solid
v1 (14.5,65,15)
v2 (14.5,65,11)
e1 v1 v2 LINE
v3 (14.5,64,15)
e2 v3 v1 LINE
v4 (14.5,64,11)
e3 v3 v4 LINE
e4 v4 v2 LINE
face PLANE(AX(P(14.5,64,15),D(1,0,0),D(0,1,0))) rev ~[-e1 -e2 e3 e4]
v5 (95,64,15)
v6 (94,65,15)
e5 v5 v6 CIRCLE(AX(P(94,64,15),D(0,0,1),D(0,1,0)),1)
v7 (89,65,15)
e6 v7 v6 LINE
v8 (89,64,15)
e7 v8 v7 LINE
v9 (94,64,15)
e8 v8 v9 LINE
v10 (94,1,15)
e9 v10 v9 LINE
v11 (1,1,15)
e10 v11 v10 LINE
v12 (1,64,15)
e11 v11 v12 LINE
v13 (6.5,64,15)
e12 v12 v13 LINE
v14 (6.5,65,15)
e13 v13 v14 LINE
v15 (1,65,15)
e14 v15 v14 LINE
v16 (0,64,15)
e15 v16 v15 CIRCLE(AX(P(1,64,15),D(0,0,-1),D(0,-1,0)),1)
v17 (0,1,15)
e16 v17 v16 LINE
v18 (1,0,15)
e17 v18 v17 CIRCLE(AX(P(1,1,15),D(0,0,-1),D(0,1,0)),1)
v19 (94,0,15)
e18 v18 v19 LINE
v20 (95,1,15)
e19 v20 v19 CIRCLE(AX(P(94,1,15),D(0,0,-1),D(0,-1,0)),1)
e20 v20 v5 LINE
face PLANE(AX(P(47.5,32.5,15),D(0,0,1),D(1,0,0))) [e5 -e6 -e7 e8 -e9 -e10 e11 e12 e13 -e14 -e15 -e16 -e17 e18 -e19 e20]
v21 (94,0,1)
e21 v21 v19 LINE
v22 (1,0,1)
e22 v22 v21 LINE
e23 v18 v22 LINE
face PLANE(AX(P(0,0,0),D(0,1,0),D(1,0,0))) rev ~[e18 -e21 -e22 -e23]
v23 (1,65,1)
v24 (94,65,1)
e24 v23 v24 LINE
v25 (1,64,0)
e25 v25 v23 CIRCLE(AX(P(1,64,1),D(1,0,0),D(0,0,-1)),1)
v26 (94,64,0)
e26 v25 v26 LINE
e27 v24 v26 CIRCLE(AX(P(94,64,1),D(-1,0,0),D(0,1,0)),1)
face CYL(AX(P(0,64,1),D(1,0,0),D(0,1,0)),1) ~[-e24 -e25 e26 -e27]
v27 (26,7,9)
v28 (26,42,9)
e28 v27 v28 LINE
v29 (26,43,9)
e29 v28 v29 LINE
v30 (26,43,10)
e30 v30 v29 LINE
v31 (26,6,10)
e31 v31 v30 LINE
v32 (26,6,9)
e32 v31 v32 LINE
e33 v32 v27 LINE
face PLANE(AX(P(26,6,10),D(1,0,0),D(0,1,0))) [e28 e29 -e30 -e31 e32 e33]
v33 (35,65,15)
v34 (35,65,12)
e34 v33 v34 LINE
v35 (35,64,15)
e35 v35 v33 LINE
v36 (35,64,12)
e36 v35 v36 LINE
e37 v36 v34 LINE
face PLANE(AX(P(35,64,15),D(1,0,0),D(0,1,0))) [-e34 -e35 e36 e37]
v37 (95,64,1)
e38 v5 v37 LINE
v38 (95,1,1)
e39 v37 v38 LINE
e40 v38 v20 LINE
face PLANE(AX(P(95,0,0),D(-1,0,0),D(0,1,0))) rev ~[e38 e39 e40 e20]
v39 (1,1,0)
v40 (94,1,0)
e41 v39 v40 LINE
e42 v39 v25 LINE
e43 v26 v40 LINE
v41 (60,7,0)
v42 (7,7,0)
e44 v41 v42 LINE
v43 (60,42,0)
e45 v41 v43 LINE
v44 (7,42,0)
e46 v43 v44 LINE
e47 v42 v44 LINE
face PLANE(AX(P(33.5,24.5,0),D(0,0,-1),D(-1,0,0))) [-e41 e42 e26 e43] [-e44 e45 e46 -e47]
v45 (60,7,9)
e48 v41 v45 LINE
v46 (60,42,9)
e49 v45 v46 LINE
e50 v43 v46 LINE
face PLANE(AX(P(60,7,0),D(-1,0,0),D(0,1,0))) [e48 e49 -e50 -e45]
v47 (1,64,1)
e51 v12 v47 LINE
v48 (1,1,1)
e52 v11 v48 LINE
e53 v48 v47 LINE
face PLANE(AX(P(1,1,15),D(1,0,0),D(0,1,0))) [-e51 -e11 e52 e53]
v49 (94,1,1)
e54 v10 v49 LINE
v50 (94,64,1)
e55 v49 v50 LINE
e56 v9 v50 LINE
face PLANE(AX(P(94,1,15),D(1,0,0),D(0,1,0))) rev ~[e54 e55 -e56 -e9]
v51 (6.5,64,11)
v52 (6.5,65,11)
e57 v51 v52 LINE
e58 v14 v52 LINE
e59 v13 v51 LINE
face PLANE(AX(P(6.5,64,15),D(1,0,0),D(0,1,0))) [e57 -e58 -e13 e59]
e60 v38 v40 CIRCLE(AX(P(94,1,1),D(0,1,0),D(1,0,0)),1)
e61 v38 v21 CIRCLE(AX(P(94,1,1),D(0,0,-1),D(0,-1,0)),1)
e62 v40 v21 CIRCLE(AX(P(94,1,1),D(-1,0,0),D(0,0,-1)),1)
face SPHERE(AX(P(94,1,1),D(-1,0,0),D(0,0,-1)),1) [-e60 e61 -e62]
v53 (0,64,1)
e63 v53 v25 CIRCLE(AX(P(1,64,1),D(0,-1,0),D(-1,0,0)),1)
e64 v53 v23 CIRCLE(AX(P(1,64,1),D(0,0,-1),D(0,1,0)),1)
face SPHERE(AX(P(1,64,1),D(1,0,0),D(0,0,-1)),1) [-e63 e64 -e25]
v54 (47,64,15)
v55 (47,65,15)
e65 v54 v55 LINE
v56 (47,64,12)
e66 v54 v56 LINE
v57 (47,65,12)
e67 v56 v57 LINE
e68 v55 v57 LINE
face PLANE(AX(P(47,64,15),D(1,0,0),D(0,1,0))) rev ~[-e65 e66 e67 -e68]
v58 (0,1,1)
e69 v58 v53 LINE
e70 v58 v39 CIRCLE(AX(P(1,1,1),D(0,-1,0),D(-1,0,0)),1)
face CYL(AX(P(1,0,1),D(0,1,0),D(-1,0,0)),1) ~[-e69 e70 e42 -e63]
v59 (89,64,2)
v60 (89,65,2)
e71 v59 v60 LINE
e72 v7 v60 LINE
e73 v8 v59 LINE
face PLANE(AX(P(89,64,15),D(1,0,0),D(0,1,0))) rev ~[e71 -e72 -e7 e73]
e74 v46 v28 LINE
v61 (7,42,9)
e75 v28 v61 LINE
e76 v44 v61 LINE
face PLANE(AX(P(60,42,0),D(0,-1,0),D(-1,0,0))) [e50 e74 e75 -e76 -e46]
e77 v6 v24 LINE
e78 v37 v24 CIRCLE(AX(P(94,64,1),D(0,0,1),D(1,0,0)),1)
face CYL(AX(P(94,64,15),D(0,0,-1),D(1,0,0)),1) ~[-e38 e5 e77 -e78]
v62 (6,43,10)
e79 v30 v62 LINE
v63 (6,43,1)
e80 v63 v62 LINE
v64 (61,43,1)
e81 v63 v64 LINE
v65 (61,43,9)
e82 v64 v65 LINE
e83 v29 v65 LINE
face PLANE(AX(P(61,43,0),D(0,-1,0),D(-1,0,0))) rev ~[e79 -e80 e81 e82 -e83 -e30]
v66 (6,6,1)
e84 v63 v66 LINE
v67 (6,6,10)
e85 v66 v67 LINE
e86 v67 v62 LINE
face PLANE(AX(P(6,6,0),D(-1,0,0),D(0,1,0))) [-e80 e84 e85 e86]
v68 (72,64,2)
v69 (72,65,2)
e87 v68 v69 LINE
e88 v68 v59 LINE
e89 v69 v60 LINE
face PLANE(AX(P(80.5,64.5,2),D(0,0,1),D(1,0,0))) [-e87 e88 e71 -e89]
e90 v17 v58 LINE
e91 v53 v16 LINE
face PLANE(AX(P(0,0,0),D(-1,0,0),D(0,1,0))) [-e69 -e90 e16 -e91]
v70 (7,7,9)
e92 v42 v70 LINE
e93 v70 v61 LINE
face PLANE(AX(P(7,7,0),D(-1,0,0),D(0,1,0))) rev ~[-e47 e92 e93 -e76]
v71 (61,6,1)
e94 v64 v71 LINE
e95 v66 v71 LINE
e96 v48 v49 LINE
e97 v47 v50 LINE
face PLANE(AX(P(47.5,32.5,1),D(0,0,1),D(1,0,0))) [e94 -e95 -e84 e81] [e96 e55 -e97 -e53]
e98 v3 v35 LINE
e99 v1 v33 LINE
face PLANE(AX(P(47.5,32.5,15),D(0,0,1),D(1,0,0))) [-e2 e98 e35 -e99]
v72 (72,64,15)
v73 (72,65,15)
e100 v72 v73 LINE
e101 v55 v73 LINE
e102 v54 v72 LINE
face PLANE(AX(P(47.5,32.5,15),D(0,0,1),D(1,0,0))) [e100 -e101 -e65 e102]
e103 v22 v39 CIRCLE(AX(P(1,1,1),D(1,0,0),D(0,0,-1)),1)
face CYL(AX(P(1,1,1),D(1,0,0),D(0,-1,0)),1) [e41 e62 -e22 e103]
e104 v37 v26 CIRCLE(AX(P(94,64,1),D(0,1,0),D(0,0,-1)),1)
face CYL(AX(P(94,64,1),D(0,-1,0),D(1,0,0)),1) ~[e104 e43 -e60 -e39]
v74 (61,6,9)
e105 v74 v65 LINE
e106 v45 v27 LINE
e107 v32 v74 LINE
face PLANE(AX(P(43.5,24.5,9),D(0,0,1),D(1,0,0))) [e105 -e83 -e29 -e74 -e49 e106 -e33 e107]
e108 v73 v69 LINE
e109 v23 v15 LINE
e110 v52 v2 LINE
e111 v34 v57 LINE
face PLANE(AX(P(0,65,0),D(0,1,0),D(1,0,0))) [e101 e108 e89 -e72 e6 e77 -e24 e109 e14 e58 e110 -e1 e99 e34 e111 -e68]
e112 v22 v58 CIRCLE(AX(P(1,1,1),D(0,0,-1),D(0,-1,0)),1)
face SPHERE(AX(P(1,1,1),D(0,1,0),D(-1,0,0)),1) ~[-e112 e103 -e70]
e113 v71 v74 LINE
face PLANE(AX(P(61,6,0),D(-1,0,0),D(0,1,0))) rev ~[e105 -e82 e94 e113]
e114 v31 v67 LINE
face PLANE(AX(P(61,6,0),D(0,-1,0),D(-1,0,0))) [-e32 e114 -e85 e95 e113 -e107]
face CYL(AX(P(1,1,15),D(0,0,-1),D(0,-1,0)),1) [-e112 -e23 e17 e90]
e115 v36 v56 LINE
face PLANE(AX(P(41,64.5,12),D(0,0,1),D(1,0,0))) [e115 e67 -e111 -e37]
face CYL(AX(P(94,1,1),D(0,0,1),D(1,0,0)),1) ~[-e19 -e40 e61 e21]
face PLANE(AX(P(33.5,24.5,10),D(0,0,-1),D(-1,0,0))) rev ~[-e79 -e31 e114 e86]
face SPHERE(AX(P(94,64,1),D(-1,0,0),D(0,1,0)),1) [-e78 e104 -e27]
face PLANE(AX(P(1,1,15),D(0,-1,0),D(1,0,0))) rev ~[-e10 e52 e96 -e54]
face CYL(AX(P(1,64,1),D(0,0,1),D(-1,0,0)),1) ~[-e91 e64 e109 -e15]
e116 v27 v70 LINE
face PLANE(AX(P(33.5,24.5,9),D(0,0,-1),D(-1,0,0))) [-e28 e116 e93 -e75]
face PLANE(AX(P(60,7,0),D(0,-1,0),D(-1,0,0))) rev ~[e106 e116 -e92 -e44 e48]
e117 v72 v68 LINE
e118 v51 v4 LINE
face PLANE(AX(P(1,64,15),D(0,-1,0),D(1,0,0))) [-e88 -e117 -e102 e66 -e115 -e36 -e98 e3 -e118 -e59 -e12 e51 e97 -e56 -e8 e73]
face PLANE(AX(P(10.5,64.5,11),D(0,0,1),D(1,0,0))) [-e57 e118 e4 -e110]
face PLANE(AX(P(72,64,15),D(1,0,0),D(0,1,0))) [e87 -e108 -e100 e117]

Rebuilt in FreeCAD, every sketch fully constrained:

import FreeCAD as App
import Part
import Sketcher


def edges_at(feature, points):
    """Names of the edges that pass closest to the given points."""
    edges = feature.Shape.Edges
    near = lambda p: min(range(len(edges)), key=lambda i: edges[i].distToShape(Part.Vertex(*p))[0])
    return sorted({f"Edge{near(p) + 1}" for p in points})


def add_polygon(sketch, points):
    """Adds a closed chain of lines whose ends are joined by coincident constraints."""
    first, n = sketch.GeometryCount, len(points)
    for a, b in zip(points, points[1:] + points[:1]):
        sketch.addGeometry(Part.LineSegment(App.Vector(*a, 0), App.Vector(*b, 0)), False)
    for i in range(n):
        sketch.addConstraint(Sketcher.Constraint("Coincident", first + i, 2, first + (i + 1) % n, 1))

doc = App.newDocument("Part")
body = doc.addObject("PartDesign::Body", "Body")

sketch1 = body.newObject("Sketcher::SketchObject", "Sketch")
sketch1.AttachmentSupport = (doc.getObject("XY_Plane"), [""])
sketch1.MapMode = "FlatFace"
add_polygon(sketch1, [(0, 65), (0, 0), (95, 0), (95, 65)])
sketch1.addConstraint(Sketcher.Constraint("Vertical", 0))
sketch1.addConstraint(Sketcher.Constraint("Horizontal", 1))
sketch1.addConstraint(Sketcher.Constraint("Vertical", 2))
sketch1.addConstraint(Sketcher.Constraint("Horizontal", 3))
sketch1.addConstraint(Sketcher.Constraint("Coincident", 0, 2, -1, 1))
sketch1.addConstraint(Sketcher.Constraint("DistanceX", 1, 1, 1, 2, 95.0))
sketch1.addConstraint(Sketcher.Constraint("DistanceY", 0, 2, 0, 1, 65.0))
pad1 = body.newObject("PartDesign::Pad", "Pad")
pad1.Profile = sketch1
pad1.Length = 15

sketch2 = body.newObject("Sketcher::SketchObject", "Sketch001")
sketch2.AttachmentSupport = (doc.getObject("XY_Plane"), [""])
sketch2.MapMode = "FlatFace"
sketch2.AttachmentOffset = App.Placement(App.Vector(0, 0, 15), App.Rotation())
add_polygon(sketch2, [(1, 64), (1, 1), (94, 1), (94, 64)])
sketch2.addConstraint(Sketcher.Constraint("Vertical", 0))
sketch2.addConstraint(Sketcher.Constraint("Horizontal", 1))
sketch2.addConstraint(Sketcher.Constraint("Vertical", 2))
sketch2.addConstraint(Sketcher.Constraint("Horizontal", 3))
sketch2.addConstraint(Sketcher.Constraint("DistanceX", 1, 1, 1, 2, 93.0))
sketch2.addConstraint(Sketcher.Constraint("DistanceY", 0, 2, 0, 1, 63.0))
sketch2.addConstraint(Sketcher.Constraint("DistanceX", -1, 1, 0, 2, 1.0))
sketch2.addConstraint(Sketcher.Constraint("DistanceY", -1, 1, 0, 2, 1.0))
pocket1 = body.newObject("PartDesign::Pocket", "Pocket")
pocket1.Profile = sketch2
pocket1.Length = 14

sketch3 = body.newObject("Sketcher::SketchObject", "Sketch002")
sketch3.AttachmentSupport = (doc.getObject("XY_Plane"), [""])
sketch3.MapMode = "FlatFace"
sketch3.AttachmentOffset = App.Placement(App.Vector(0, 0, 15), App.Rotation())
add_polygon(sketch3, [(72, 65), (72, 64), (89, 64), (89, 65)])
sketch3.addConstraint(Sketcher.Constraint("Vertical", 0))
sketch3.addConstraint(Sketcher.Constraint("Horizontal", 1))
sketch3.addConstraint(Sketcher.Constraint("Vertical", 2))
sketch3.addConstraint(Sketcher.Constraint("Horizontal", 3))
sketch3.addConstraint(Sketcher.Constraint("DistanceX", 1, 1, 1, 2, 17.0))
sketch3.addConstraint(Sketcher.Constraint("DistanceY", 0, 2, 0, 1, 1.0))
sketch3.addConstraint(Sketcher.Constraint("DistanceX", -1, 1, 0, 2, 72.0))
sketch3.addConstraint(Sketcher.Constraint("DistanceY", -1, 1, 0, 2, 64.0))
pocket2 = body.newObject("PartDesign::Pocket", "Pocket001")
pocket2.Profile = sketch3
pocket2.Length = 13
doc.recompute()

fillet = body.newObject("PartDesign::Fillet", "Fillet")
fillet.Base = (pocket2, edges_at(pocket2, [(47.5, 65, 0)]))
fillet.Radius = 1
doc.recompute()

fillet2 = body.newObject("PartDesign::Fillet", "Fillet001")
fillet2.Base = (fillet, edges_at(fillet, [(0, 32, 0), (0, 64.707, 0.293), (0, 65, 8)]))
fillet2.Radius = 1
doc.recompute()

fillet3 = body.newObject("PartDesign::Fillet", "Fillet002")
fillet3.Base = (fillet2, edges_at(fillet2, [(48, 0, 0), (0.293, 0, 0.293), (0, 0, 8)]))
fillet3.Radius = 1
doc.recompute()

fillet4 = body.newObject("PartDesign::Fillet", "Fillet003")
fillet4.Base = (fillet3, edges_at(fillet3, [
    (95, 64.707, 0.293),
    (95, 32.5, 0),
    (95, 0.293, 0.293),
    (95, 65, 8),
    (95, 0, 8),
]))
fillet4.Radius = 1

sketch4 = body.newObject("Sketcher::SketchObject", "Sketch003")
sketch4.AttachmentSupport = (doc.getObject("XY_Plane"), [""])
sketch4.MapMode = "FlatFace"
sketch4.AttachmentOffset = App.Placement(App.Vector(0, 0, 15), App.Rotation())
add_polygon(sketch4, [(6.5, 65), (6.5, 64), (14.5, 64), (14.5, 65)])
sketch4.addConstraint(Sketcher.Constraint("Vertical", 0))
sketch4.addConstraint(Sketcher.Constraint("Horizontal", 1))
sketch4.addConstraint(Sketcher.Constraint("Vertical", 2))
sketch4.addConstraint(Sketcher.Constraint("Horizontal", 3))
sketch4.addConstraint(Sketcher.Constraint("DistanceX", 1, 1, 1, 2, 8.0))
sketch4.addConstraint(Sketcher.Constraint("DistanceY", 0, 2, 0, 1, 1.0))
sketch4.addConstraint(Sketcher.Constraint("DistanceY", -1, 1, 0, 2, 64.0))
sketch4.addConstraint(Sketcher.Constraint("DistanceX", -1, 1, 0, 2, 6.5))
pocket3 = body.newObject("PartDesign::Pocket", "Pocket002")
pocket3.Profile = sketch4
pocket3.Length = 4

sketch5 = body.newObject("Sketcher::SketchObject", "Sketch004")
sketch5.AttachmentSupport = (doc.getObject("XY_Plane"), [""])
sketch5.MapMode = "FlatFace"
sketch5.AttachmentOffset = App.Placement(App.Vector(0, 0, 15), App.Rotation())
add_polygon(sketch5, [(35, 65), (35, 64), (47, 64), (47, 65)])
sketch5.addConstraint(Sketcher.Constraint("Vertical", 0))
sketch5.addConstraint(Sketcher.Constraint("Horizontal", 1))
sketch5.addConstraint(Sketcher.Constraint("Vertical", 2))
sketch5.addConstraint(Sketcher.Constraint("Horizontal", 3))
sketch5.addConstraint(Sketcher.Constraint("DistanceX", 1, 1, 1, 2, 12.0))
sketch5.addConstraint(Sketcher.Constraint("DistanceY", 0, 2, 0, 1, 1.0))
sketch5.addConstraint(Sketcher.Constraint("DistanceX", -1, 1, 0, 2, 35.0))
sketch5.addConstraint(Sketcher.Constraint("DistanceY", -1, 1, 0, 2, 64.0))
pocket4 = body.newObject("PartDesign::Pocket", "Pocket003")
pocket4.Profile = sketch5
pocket4.Length = 3

sketch6 = body.newObject("Sketcher::SketchObject", "Sketch005")
sketch6.AttachmentSupport = (doc.getObject("XY_Plane"), [""])
sketch6.MapMode = "FlatFace"
add_polygon(sketch6, [(61, 43), (61, 6), (6, 6), (6, 43)])
sketch6.addConstraint(Sketcher.Constraint("Vertical", 0))
sketch6.addConstraint(Sketcher.Constraint("Horizontal", 1))
sketch6.addConstraint(Sketcher.Constraint("Vertical", 2))
sketch6.addConstraint(Sketcher.Constraint("Horizontal", 3))
sketch6.addConstraint(Sketcher.Constraint("DistanceX", 1, 2, 1, 1, 55.0))
sketch6.addConstraint(Sketcher.Constraint("DistanceY", 0, 2, 0, 1, 37.0))
sketch6.addConstraint(Sketcher.Constraint("DistanceX", -1, 1, 0, 2, 61.0))
sketch6.addConstraint(Sketcher.Constraint("DistanceY", -1, 1, 0, 2, 6.0))
pad2 = body.newObject("PartDesign::Pad", "Pad001")
pad2.Profile = sketch6
pad2.Length = 10

sketch7 = body.newObject("Sketcher::SketchObject", "Sketch006")
sketch7.AttachmentSupport = (doc.getObject("XY_Plane"), [""])
sketch7.MapMode = "FlatFace"
add_polygon(sketch7, [(60, 42), (60, 7), (7, 7), (7, 42)])
sketch7.addConstraint(Sketcher.Constraint("Vertical", 0))
sketch7.addConstraint(Sketcher.Constraint("Horizontal", 1))
sketch7.addConstraint(Sketcher.Constraint("Vertical", 2))
sketch7.addConstraint(Sketcher.Constraint("Horizontal", 3))
sketch7.addConstraint(Sketcher.Constraint("DistanceX", 1, 2, 1, 1, 53.0))
sketch7.addConstraint(Sketcher.Constraint("DistanceY", 0, 2, 0, 1, 35.0))
sketch7.addConstraint(Sketcher.Constraint("DistanceX", -1, 1, 0, 2, 60.0))
sketch7.addConstraint(Sketcher.Constraint("DistanceY", -1, 1, 0, 2, 7.0))
pocket5 = body.newObject("PartDesign::Pocket", "Pocket004")
pocket5.Profile = sketch7
pocket5.Length = 9
pocket5.Reversed = True

sketch8 = body.newObject("Sketcher::SketchObject", "Sketch007")
sketch8.AttachmentSupport = (doc.getObject("XY_Plane"), [""])
sketch8.MapMode = "FlatFace"
sketch8.AttachmentOffset = App.Placement(App.Vector(0, 0, 10), App.Rotation())
add_polygon(sketch8, [(26, 43), (26, 6), (61, 6), (61, 43)])
sketch8.addConstraint(Sketcher.Constraint("Vertical", 0))
sketch8.addConstraint(Sketcher.Constraint("Horizontal", 1))
sketch8.addConstraint(Sketcher.Constraint("Vertical", 2))
sketch8.addConstraint(Sketcher.Constraint("Horizontal", 3))
sketch8.addConstraint(Sketcher.Constraint("DistanceX", 1, 1, 1, 2, 35.0))
sketch8.addConstraint(Sketcher.Constraint("DistanceY", 0, 2, 0, 1, 37.0))
sketch8.addConstraint(Sketcher.Constraint("DistanceX", -1, 1, 0, 2, 26.0))
sketch8.addConstraint(Sketcher.Constraint("DistanceY", -1, 1, 0, 2, 6.0))
pocket6 = body.newObject("PartDesign::Pocket", "Pocket005")
pocket6.Profile = sketch8
pocket6.Length = 1

doc.recompute()
